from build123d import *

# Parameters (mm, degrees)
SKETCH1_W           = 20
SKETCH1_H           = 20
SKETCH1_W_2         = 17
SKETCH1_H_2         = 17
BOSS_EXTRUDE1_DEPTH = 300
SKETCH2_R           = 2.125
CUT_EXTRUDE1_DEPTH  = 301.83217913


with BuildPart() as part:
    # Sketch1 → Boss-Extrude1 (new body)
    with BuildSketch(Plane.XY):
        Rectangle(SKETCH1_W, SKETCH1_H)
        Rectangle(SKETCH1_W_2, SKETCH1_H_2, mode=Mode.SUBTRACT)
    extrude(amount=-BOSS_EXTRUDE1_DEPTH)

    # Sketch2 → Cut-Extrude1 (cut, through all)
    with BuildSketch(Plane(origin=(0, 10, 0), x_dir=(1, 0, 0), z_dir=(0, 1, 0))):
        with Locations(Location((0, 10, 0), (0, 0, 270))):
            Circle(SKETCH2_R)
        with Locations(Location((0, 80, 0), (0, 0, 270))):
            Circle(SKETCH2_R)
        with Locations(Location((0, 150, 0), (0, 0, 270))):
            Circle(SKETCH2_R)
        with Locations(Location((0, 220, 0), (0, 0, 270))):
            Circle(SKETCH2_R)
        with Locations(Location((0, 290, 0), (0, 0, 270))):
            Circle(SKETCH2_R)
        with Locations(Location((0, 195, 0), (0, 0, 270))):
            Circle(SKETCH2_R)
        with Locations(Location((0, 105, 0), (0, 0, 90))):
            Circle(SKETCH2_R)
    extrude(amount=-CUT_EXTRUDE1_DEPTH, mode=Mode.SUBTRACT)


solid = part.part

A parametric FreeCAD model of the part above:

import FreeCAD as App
import Part
import Sketcher
Q = App.Units.Quantity

doc = App.newDocument("Part")
params = doc.addObject("Spreadsheet::Sheet", "Params")
for row, (alias, value) in enumerate([
    ("sketch1_width", "20 mm"),
    ("sketch1_width2", "17 mm"),
    ("pad1_length", "300 mm"),
    ("sketch2_diameter", "4.25 mm"),
], start=1):
    params.set(f"A{row}", alias)
    params.set(f"B{row}", "=" + value)
    params.setAlias(f"B{row}", alias)

body = doc.addObject("PartDesign::Body", "Body")

sketch1 = body.newObject("Sketcher::SketchObject", "Sketch")
sketch1.AttachmentSupport = (doc.getObject("XY_Plane"), [""])
sketch1.MapMode = "FlatFace"
sketch1.addGeometry(Part.LineSegment(App.Vector(-10, 10, 0), App.Vector(-10, -10, 0)), False)
sketch1.addGeometry(Part.LineSegment(App.Vector(-10, -10, 0), App.Vector(10, -10, 0)), False)
sketch1.addGeometry(Part.LineSegment(App.Vector(10, -10, 0), App.Vector(10, 10, 0)), False)
sketch1.addGeometry(Part.LineSegment(App.Vector(10, 10, 0), App.Vector(-10, 10, 0)), False)
sketch1.addGeometry(Part.LineSegment(App.Vector(8, -8, 0), App.Vector(-8, -8, 0)), False)
sketch1.addGeometry(Part.LineSegment(App.Vector(-8, -8, 0), App.Vector(-8, 8, 0)), False)
sketch1.addGeometry(Part.LineSegment(App.Vector(-8, 8, 0), App.Vector(8, 8, 0)), False)
sketch1.addGeometry(Part.LineSegment(App.Vector(8, 8, 0), App.Vector(8, -8, 0)), False)
sketch1.addConstraint(Sketcher.Constraint("Coincident", 0, 2, 1, 1))
sketch1.addConstraint(Sketcher.Constraint("Coincident", 1, 2, 2, 1))
sketch1.addConstraint(Sketcher.Constraint("Coincident", 2, 2, 3, 1))
sketch1.addConstraint(Sketcher.Constraint("Coincident", 3, 2, 0, 1))
sketch1.addConstraint(Sketcher.Constraint("Coincident", 4, 2, 5, 1))
sketch1.addConstraint(Sketcher.Constraint("Coincident", 5, 2, 6, 1))
sketch1.addConstraint(Sketcher.Constraint("Coincident", 6, 2, 7, 1))
sketch1.addConstraint(Sketcher.Constraint("Coincident", 7, 2, 4, 1))
sketch1.addConstraint(Sketcher.Constraint("Vertical", 0))
sketch1.addConstraint(Sketcher.Constraint("Horizontal", 1))
sketch1.addConstraint(Sketcher.Constraint("Vertical", 2))
sketch1.addConstraint(Sketcher.Constraint("Horizontal", 3))
sketch1.addConstraint(Sketcher.Constraint("Horizontal", 4))
sketch1.addConstraint(Sketcher.Constraint("Vertical", 5))
sketch1.addConstraint(Sketcher.Constraint("Horizontal", 6))
sketch1.addConstraint(Sketcher.Constraint("Vertical", 7))
sketch1.addConstraint(Sketcher.Constraint("Symmetric", 0, 2, 2, 2, -1, 1))
sketch1.addConstraint(Sketcher.Constraint("Symmetric", 4, 2, 6, 2, -1, 1))
sketch1.addConstraint(Sketcher.Constraint("Equal", 3, 0))
sketch1.addConstraint(Sketcher.Constraint("Equal", 6, 5))
sketch1.addConstraint(Sketcher.Constraint("DistanceX", 1, 1, 1, 2, Q("20 mm")))
sketch1.addConstraint(Sketcher.Constraint("DistanceX", 4, 2, 4, 1, Q("17 mm")))
sketch1.setExpression("Constraints[20]", "Params.sketch1_width")
sketch1.setExpression("Constraints[21]", "Params.sketch1_width2")
pad1 = body.newObject("PartDesign::Pad", "Pad")
pad1.Profile = sketch1
pad1.setExpression("Length", "Params.pad1_length")
pad1.Reversed = True

sketch2 = body.newObject("Sketcher::SketchObject", "Sketch001")
sketch2.AttachmentSupport = (doc.getObject("XZ_Plane"), [""])
sketch2.MapMode = "FlatFace"
sketch2.AttachmentOffset = App.Placement(App.Vector(0, 0, -10), App.Rotation())
sketch2.addGeometry(Part.Circle(App.Vector(0, -10, 0), App.Vector(0, 0, 1), 2.1), False)
sketch2.addGeometry(Part.Circle(App.Vector(0, -80, 0), App.Vector(0, 0, 1), 2.1), False)
sketch2.addGeometry(Part.Circle(App.Vector(0, -150, 0), App.Vector(0, 0, 1), 2.1), False)
sketch2.addGeometry(Part.Circle(App.Vector(0, -220, 0), App.Vector(0, 0, 1), 2.1), False)
sketch2.addGeometry(Part.Circle(App.Vector(0, -290, 0), App.Vector(0, 0, 1), 2.1), False)
sketch2.addGeometry(Part.Circle(App.Vector(0, -195, 0), App.Vector(0, 0, 1), 2.1), False)
sketch2.addGeometry(Part.Circle(App.Vector(0, -105, 0), App.Vector(0, 0, 1), 2.1), False)
sketch2.addConstraint(Sketcher.Constraint("Equal", 0, 1))
sketch2.addConstraint(Sketcher.Constraint("Equal", 1, 2))
sketch2.addConstraint(Sketcher.Constraint("Equal", 2, 3))
sketch2.addConstraint(Sketcher.Constraint("Equal", 3, 4))
sketch2.addConstraint(Sketcher.Constraint("Equal", 4, 5))
sketch2.addConstraint(Sketcher.Constraint("Equal", 5, 6))
sketch2.addConstraint(Sketcher.Constraint("PointOnObject", 0, 3, -2))
sketch2.addConstraint(Sketcher.Constraint("PointOnObject", 1, 3, -2))
sketch2.addConstraint(Sketcher.Constraint("PointOnObject", 2, 3, -2))
sketch2.addConstraint(Sketcher.Constraint("PointOnObject", 3, 3, -2))
sketch2.addConstraint(Sketcher.Constraint("PointOnObject", 4, 3, -2))
sketch2.addConstraint(Sketcher.Constraint("PointOnObject", 5, 3, -2))
sketch2.addConstraint(Sketcher.Constraint("PointOnObject", 6, 3, -2))
sketch2.addConstraint(Sketcher.Constraint("Diameter", 0, Q("4.25 mm")))
sketch2.addConstraint(Sketcher.Constraint("DistanceY", 0, 3, -1, 1, Q("10 mm")))
sketch2.addConstraint(Sketcher.Constraint("DistanceY", 1, 3, -1, 1, Q("80 mm")))
sketch2.addConstraint(Sketcher.Constraint("DistanceY", 2, 3, -1, 1, Q("150 mm")))
sketch2.addConstraint(Sketcher.Constraint("DistanceY", 3, 3, -1, 1, Q("220 mm")))
sketch2.addConstraint(Sketcher.Constraint("DistanceY", 4, 3, -1, 1, Q("290 mm")))
sketch2.addConstraint(Sketcher.Constraint("DistanceY", 5, 3, -1, 1, Q("195 mm")))
sketch2.addConstraint(Sketcher.Constraint("DistanceY", 6, 3, -1, 1, Q("105 mm")))
sketch2.setExpression("Constraints[13]", "Params.sketch2_diameter")
pocket1 = body.newObject("PartDesign::Pocket", "Pocket")
pocket1.Profile = sketch2
pocket1.Type = "ThroughAll"
pocket1.Reversed = True

doc.recompute()
